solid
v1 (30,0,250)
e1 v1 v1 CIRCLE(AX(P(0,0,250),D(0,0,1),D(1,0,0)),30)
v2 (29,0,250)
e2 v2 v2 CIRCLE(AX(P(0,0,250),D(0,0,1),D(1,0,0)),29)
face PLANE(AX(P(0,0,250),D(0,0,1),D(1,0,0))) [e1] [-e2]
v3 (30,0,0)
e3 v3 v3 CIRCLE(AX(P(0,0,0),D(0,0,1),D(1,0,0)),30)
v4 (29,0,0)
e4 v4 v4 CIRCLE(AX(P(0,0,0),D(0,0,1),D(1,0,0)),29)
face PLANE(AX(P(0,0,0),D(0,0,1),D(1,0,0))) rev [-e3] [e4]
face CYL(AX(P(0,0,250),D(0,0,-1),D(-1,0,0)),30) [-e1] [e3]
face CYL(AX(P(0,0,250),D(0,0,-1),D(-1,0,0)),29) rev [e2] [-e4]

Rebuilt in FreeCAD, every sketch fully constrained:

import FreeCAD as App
import Part
import Sketcher
Q = App.Units.Quantity

doc = App.newDocument("Part")
params = doc.addObject("Spreadsheet::Sheet", "Params")
for row, (alias, value) in enumerate([
    ("sketch1_diameter", "60 mm"),
    ("sketch1_diameter2", "58 mm"),
    ("pad1_length", "250 mm"),
], start=1):
    params.set(f"A{row}", alias)
    params.set(f"B{row}", "=" + value)
    params.setAlias(f"B{row}", alias)

body = doc.addObject("PartDesign::Body", "Body")

# Sketch on XY plane
sketch1 = body.newObject("Sketcher::SketchObject", "Sketch")
sketch1.AttachmentSupport = (doc.getObject("XY_Plane"), [""])
sketch1.MapMode = "FlatFace"
sketch1.addGeometry([
    Part.Circle(App.Vector(0, 0, 0), App.Vector(0, 0, 1), 30),
    Part.Circle(App.Vector(0, 0, 0), App.Vector(0, 0, 1), 29),
], False)
sketch1.addConstraint([
    Sketcher.Constraint("Coincident", 0, 3, -1, 1),
    Sketcher.Constraint("Coincident", 1, 3, -1, 1),
    Sketcher.Constraint("Diameter", 0, Q("60 mm")),
    Sketcher.Constraint("Diameter", 1, Q("58 mm")),
])
sketch1.setExpression("Constraints[2]", "Params.sketch1_diameter")
sketch1.setExpression("Constraints[3]", "Params.sketch1_diameter2")
pad1 = body.newObject("PartDesign::Pad", "Pad")
pad1.Profile = sketch1
pad1.setExpression("Length", "Params.pad1_length")

doc.recompute()
